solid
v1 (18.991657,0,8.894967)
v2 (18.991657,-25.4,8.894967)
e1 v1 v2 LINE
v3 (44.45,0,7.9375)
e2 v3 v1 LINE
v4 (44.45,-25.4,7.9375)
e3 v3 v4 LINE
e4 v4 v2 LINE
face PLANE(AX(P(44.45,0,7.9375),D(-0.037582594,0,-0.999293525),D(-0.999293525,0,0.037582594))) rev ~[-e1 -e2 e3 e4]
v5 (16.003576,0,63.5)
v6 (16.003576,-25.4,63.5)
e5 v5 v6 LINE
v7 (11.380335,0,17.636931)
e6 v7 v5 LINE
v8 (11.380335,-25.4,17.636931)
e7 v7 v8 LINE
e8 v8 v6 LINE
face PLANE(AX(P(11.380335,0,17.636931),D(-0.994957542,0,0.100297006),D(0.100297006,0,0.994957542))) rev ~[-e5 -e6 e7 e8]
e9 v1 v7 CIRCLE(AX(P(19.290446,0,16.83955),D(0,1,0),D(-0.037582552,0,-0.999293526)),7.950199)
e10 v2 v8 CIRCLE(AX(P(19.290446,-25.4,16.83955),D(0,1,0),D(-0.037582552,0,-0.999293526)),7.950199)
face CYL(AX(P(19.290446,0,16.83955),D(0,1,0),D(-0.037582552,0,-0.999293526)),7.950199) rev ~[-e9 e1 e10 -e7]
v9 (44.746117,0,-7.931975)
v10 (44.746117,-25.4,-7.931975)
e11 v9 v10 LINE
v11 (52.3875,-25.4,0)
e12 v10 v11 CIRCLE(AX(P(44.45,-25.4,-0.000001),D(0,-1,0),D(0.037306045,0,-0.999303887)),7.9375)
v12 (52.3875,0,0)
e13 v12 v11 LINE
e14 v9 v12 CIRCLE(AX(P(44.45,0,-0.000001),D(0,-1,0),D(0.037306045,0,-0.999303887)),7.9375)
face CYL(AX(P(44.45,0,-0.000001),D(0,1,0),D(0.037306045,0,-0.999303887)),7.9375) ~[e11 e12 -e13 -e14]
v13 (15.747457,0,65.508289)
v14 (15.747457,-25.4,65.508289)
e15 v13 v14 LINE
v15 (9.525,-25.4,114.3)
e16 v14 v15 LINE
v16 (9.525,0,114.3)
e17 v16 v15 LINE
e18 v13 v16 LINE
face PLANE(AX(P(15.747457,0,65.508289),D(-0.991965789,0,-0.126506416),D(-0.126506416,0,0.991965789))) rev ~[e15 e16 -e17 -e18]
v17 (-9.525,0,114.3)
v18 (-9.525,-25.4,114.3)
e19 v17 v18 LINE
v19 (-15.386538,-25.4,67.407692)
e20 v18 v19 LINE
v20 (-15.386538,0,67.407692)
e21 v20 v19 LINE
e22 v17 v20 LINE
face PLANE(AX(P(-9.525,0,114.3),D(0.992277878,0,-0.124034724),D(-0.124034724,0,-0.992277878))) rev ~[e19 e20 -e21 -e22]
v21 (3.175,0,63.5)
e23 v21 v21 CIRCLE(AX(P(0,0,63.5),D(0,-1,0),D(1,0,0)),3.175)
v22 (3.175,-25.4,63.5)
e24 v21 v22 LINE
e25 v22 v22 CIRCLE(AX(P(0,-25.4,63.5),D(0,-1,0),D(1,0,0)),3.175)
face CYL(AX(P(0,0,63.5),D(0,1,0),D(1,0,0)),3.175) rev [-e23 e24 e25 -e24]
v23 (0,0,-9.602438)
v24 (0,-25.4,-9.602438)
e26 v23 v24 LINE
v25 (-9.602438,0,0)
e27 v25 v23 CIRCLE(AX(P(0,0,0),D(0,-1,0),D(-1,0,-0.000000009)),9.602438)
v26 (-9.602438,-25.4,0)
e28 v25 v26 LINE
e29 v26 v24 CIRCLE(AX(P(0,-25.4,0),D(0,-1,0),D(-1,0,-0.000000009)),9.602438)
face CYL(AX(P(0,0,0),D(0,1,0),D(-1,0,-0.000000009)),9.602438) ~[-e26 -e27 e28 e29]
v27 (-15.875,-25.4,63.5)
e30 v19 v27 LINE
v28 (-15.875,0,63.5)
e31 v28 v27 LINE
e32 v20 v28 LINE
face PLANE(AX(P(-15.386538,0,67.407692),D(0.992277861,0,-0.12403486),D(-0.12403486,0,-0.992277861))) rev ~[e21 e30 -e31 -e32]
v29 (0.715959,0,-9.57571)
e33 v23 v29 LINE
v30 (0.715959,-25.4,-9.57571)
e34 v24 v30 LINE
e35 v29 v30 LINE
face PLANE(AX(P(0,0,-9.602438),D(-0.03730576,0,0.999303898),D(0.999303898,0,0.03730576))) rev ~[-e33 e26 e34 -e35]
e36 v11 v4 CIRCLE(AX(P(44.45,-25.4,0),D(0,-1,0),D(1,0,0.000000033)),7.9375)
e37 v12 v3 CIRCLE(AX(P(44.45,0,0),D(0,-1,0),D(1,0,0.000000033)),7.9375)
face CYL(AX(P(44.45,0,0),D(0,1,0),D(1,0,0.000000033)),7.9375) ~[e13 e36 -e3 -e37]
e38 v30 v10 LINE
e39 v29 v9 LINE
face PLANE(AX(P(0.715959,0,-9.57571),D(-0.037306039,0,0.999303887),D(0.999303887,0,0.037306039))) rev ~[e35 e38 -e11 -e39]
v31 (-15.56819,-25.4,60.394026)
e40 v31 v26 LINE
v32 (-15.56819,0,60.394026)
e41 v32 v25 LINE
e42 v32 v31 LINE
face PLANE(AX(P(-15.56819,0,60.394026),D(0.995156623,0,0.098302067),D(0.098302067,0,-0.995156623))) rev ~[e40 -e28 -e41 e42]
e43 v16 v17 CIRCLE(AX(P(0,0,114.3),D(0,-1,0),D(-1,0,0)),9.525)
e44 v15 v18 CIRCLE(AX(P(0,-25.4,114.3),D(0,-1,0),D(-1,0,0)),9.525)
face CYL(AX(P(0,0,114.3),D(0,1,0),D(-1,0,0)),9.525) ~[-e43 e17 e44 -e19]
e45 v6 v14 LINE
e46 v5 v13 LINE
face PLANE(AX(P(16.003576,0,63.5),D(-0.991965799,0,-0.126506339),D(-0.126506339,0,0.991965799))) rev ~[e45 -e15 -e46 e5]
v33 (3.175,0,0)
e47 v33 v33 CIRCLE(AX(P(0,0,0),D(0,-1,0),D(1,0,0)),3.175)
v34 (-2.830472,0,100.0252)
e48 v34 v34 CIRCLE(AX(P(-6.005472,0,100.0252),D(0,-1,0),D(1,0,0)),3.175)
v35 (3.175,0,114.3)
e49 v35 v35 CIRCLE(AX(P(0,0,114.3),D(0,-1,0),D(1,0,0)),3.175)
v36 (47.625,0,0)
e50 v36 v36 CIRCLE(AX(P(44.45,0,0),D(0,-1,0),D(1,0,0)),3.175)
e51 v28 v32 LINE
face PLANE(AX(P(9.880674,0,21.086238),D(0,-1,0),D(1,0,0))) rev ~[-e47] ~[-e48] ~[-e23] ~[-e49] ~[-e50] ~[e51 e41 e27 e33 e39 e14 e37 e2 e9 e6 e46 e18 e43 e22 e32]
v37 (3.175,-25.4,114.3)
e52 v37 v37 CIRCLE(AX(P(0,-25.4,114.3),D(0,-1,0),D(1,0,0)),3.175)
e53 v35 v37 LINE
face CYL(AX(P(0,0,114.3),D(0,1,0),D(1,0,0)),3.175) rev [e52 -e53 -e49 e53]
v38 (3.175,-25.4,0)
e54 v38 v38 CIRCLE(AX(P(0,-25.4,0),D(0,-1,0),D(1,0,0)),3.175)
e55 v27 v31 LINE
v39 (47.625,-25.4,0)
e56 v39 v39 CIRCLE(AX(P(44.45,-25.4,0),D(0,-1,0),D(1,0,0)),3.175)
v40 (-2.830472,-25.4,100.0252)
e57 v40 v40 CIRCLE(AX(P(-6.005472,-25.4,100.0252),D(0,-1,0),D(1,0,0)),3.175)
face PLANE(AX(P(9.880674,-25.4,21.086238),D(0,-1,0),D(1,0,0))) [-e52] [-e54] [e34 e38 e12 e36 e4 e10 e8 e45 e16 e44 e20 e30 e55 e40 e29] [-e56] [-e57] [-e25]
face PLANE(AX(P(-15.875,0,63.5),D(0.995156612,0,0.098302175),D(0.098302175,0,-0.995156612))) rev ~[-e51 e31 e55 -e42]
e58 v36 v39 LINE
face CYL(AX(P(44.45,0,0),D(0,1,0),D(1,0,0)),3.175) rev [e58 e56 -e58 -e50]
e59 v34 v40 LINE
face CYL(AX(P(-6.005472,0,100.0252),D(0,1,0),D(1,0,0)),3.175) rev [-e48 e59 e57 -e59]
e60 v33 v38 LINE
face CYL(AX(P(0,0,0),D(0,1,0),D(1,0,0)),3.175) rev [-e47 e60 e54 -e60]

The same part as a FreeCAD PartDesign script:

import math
import FreeCAD as App
import Part
import Sketcher
Q = App.Units.Quantity

doc = App.newDocument("Part")
body = doc.addObject("PartDesign::Body", "Body")

# Sketch on XZ plane
sketch1 = body.newObject("Sketcher::SketchObject", "Sketch")
sketch1.AttachmentSupport = (doc.getObject("XZ_Plane"), [""])
sketch1.MapMode = "FlatFace"
sketch1.addGeometry(Part.LineSegment(App.Vector(-15.6, 60.4, 0), App.Vector(-9.6, 0, 0)), False)
sketch1.addGeometry(Part.ArcOfCircle(Part.Circle(App.Vector(0, 0, 0), App.Vector(0, 0, 1), 9.6), math.radians(-180), math.radians(-90)), False)
sketch1.addGeometry(Part.LineSegment(App.Vector(0, -9.6, 0), App.Vector(0.7, -9.6, 0)), False)
sketch1.addGeometry(Part.LineSegment(App.Vector(0.7, -9.6, 0), App.Vector(44.7, -7.9, 0)), False)
sketch1.addGeometry(Part.ArcOfCircle(Part.Circle(App.Vector(44.5, 0, 0), App.Vector(0, 0, 1), 7.9), math.radians(-88), math.radians(0)), False)
sketch1.addGeometry(Part.ArcOfCircle(Part.Circle(App.Vector(44.4, 0, 0), App.Vector(0, 0, 1), 7.9), math.radians(0), math.radians(90)), False)
sketch1.addGeometry(Part.LineSegment(App.Vector(44.5, 7.9, 0), App.Vector(19, 8.9, 0)), False)
sketch1.addGeometry(Part.ArcOfCircle(Part.Circle(App.Vector(19.3, 16.8, 0), App.Vector(0, 0, 1), 8), math.radians(174), math.radians(268)), False)
sketch1.addGeometry(Part.LineSegment(App.Vector(11.4, 17.6, 0), App.Vector(16, 63.5, 0)), False)
sketch1.addGeometry(Part.LineSegment(App.Vector(16, 63.5, 0), App.Vector(15.7, 65.5, 0)), False)
sketch1.addGeometry(Part.LineSegment(App.Vector(15.7, 65.5, 0), App.Vector(9.5, 114.3, 0)), False)
sketch1.addGeometry(Part.ArcOfCircle(Part.Circle(App.Vector(0, 114.3, 0), App.Vector(0, 0, 1), 9.5), math.radians(0), math.radians(180)), False)
sketch1.addGeometry(Part.LineSegment(App.Vector(-9.5, 114.3, 0), App.Vector(-15.4, 67.4, 0)), False)
sketch1.addGeometry(Part.LineSegment(App.Vector(-15.4, 67.4, 0), App.Vector(-15.9, 63.5, 0)), False)
sketch1.addGeometry(Part.LineSegment(App.Vector(-15.9, 63.5, 0), App.Vector(-15.6, 60.4, 0)), False)
sketch1.addGeometry(Part.Circle(App.Vector(0, 0, 0), App.Vector(0, 0, 1), 3.2), False)
sketch1.addGeometry(Part.Circle(App.Vector(44.5, 0, 0), App.Vector(0, 0, 1), 3.2), False)
sketch1.addGeometry(Part.Circle(App.Vector(0, 63.5, 0), App.Vector(0, 0, 1), 3.2), False)
sketch1.addGeometry(Part.Circle(App.Vector(-6, 100, 0), App.Vector(0, 0, 1), 3.2), False)
sketch1.addGeometry(Part.Circle(App.Vector(0, 114.3, 0), App.Vector(0, 0, 1), 3.2), False)
sketch1.addConstraint(Sketcher.Constraint("Coincident", 0, 2, 1, 1))
sketch1.addConstraint(Sketcher.Constraint("Coincident", 1, 2, 2, 1))
sketch1.addConstraint(Sketcher.Constraint("Coincident", 2, 2, 3, 1))
sketch1.addConstraint(Sketcher.Constraint("Tangent", 3, 2, 4, 1))
sketch1.addConstraint(Sketcher.Constraint("Tangent", 4, 2, 5, 1))
sketch1.addConstraint(Sketcher.Constraint("Coincident", 5, 2, 6, 1))
sketch1.addConstraint(Sketcher.Constraint("Tangent", 6, 2, 7, 2))
sketch1.addConstraint(Sketcher.Constraint("Tangent", 7, 1, 8, 1))
sketch1.addConstraint(Sketcher.Constraint("Coincident", 8, 2, 9, 1))
sketch1.addConstraint(Sketcher.Constraint("Coincident", 9, 2, 10, 1))
sketch1.addConstraint(Sketcher.Constraint("Coincident", 10, 2, 11, 1))
sketch1.addConstraint(Sketcher.Constraint("Coincident", 11, 2, 12, 1))
sketch1.addConstraint(Sketcher.Constraint("Coincident", 12, 2, 13, 1))
sketch1.addConstraint(Sketcher.Constraint("Coincident", 13, 2, 14, 1))
sketch1.addConstraint(Sketcher.Constraint("Coincident", 14, 2, 0, 1))
sketch1.addConstraint(Sketcher.Constraint("Coincident", 1, 3, -1, 1))
sketch1.addConstraint(Sketcher.Constraint("Coincident", 15, 3, -1, 1))
sketch1.addConstraint(Sketcher.Constraint("Coincident", 16, 3, 4, 3))
sketch1.addConstraint(Sketcher.Constraint("Coincident", 19, 3, 11, 3))
sketch1.addConstraint(Sketcher.Constraint("Equal", 4, 5))
sketch1.addConstraint(Sketcher.Constraint("Equal", 15, 16))
sketch1.addConstraint(Sketcher.Constraint("Equal", 16, 17))
sketch1.addConstraint(Sketcher.Constraint("Equal", 17, 18))
sketch1.addConstraint(Sketcher.Constraint("Equal", 18, 19))
sketch1.addConstraint(Sketcher.Constraint("Symmetric", 10, 2, 11, 2, -2))
sketch1.addConstraint(Sketcher.Constraint("PointOnObject", 4, 3, -1))
sketch1.addConstraint(Sketcher.Constraint("PointOnObject", 17, 3, -2))
sketch1.addConstraint(Sketcher.Constraint("PointOnObject", 0, 2, -1))
sketch1.addConstraint(Sketcher.Constraint("PointOnObject", 1, 2, -2))
sketch1.addConstraint(Sketcher.Constraint("PointOnObject", 4, 2, -1))
sketch1.addConstraint(Sketcher.Constraint("Parallel", 2, 3))
sketch1.addConstraint(Sketcher.Constraint("Parallel", 9, 10))
sketch1.addConstraint(Sketcher.Constraint("Parallel", 12, 13))
sketch1.addConstraint(Sketcher.Constraint("Parallel", 0, 14))
sketch1.addConstraint(Sketcher.Constraint("Horizontal", 17, 3, 8, 2))
sketch1.addConstraint(Sketcher.Constraint("Horizontal", 19, 3, 10, 2))
sketch1.addConstraint(Sketcher.Constraint("Horizontal", 8, 2, 13, 2))
sketch1.addConstraint(Sketcher.Constraint("Vertical", 16, 3, 5, 2))
sketch1.addConstraint(Sketcher.Constraint("Diameter", 15, Q("0.25 in")))
sketch1.addConstraint(Sketcher.Constraint("Radius", 4, Q("0.3125 in")))
sketch1.addConstraint(Sketcher.Constraint("Radius", 7, Q("0.313 in")))
sketch1.addConstraint(Sketcher.Constraint("Radius", 11, Q("0.375 in")))
sketch1.addConstraint(Sketcher.Constraint("DistanceY", 17, 3, 11, 3, Q("2 in")))
sketch1.addConstraint(Sketcher.Constraint("DistanceY", -1, 1, 11, 3, Q("4.5 in")))
sketch1.addConstraint(Sketcher.Constraint("DistanceX", -1, 1, 4, 3, Q("1.75 in")))
sketch1.addConstraint(Sketcher.Constraint("DistanceY", -1, 1, 18, 3, Q("3.938 in")))
sketch1.addConstraint(Sketcher.Constraint("DistanceX", 13, 2, -1, 1, Q("0.625 in")))
sketch1.addConstraint(Sketcher.Constraint("Radius", 1, Q("9.602438 mm")))
sketch1.addConstraint(Sketcher.Constraint("Distance", 0, Q("60.687961 mm")))
sketch1.addConstraint(Sketcher.Constraint("Distance", 3, Q("44.060829 mm")))
sketch1.addConstraint(Sketcher.Constraint("Distance", 6, Q("25.476341 mm")))
sketch1.addConstraint(Sketcher.Constraint("Distance", 10, Q("49.186889 mm")))
sketch1.addConstraint(Sketcher.Constraint("DistanceY", -1, 1, 7, 3, Q("16.83955 mm")))
sketch1.addConstraint(Sketcher.Constraint("DistanceY", -1, 1, 7, 1, Q("17.636931 mm")))
sketch1.addConstraint(Sketcher.Constraint("DistanceY", -1, 1, 12, 2, Q("67.407692 mm")))
sketch1.addConstraint(Sketcher.Constraint("DistanceX", 18, 3, 8, 2, Q("22.009048 mm")))
pad1 = body.newObject("PartDesign::Pad", "Pad")
pad1.Profile = sketch1
pad1.Length = Q("1 in")

doc.recompute()
